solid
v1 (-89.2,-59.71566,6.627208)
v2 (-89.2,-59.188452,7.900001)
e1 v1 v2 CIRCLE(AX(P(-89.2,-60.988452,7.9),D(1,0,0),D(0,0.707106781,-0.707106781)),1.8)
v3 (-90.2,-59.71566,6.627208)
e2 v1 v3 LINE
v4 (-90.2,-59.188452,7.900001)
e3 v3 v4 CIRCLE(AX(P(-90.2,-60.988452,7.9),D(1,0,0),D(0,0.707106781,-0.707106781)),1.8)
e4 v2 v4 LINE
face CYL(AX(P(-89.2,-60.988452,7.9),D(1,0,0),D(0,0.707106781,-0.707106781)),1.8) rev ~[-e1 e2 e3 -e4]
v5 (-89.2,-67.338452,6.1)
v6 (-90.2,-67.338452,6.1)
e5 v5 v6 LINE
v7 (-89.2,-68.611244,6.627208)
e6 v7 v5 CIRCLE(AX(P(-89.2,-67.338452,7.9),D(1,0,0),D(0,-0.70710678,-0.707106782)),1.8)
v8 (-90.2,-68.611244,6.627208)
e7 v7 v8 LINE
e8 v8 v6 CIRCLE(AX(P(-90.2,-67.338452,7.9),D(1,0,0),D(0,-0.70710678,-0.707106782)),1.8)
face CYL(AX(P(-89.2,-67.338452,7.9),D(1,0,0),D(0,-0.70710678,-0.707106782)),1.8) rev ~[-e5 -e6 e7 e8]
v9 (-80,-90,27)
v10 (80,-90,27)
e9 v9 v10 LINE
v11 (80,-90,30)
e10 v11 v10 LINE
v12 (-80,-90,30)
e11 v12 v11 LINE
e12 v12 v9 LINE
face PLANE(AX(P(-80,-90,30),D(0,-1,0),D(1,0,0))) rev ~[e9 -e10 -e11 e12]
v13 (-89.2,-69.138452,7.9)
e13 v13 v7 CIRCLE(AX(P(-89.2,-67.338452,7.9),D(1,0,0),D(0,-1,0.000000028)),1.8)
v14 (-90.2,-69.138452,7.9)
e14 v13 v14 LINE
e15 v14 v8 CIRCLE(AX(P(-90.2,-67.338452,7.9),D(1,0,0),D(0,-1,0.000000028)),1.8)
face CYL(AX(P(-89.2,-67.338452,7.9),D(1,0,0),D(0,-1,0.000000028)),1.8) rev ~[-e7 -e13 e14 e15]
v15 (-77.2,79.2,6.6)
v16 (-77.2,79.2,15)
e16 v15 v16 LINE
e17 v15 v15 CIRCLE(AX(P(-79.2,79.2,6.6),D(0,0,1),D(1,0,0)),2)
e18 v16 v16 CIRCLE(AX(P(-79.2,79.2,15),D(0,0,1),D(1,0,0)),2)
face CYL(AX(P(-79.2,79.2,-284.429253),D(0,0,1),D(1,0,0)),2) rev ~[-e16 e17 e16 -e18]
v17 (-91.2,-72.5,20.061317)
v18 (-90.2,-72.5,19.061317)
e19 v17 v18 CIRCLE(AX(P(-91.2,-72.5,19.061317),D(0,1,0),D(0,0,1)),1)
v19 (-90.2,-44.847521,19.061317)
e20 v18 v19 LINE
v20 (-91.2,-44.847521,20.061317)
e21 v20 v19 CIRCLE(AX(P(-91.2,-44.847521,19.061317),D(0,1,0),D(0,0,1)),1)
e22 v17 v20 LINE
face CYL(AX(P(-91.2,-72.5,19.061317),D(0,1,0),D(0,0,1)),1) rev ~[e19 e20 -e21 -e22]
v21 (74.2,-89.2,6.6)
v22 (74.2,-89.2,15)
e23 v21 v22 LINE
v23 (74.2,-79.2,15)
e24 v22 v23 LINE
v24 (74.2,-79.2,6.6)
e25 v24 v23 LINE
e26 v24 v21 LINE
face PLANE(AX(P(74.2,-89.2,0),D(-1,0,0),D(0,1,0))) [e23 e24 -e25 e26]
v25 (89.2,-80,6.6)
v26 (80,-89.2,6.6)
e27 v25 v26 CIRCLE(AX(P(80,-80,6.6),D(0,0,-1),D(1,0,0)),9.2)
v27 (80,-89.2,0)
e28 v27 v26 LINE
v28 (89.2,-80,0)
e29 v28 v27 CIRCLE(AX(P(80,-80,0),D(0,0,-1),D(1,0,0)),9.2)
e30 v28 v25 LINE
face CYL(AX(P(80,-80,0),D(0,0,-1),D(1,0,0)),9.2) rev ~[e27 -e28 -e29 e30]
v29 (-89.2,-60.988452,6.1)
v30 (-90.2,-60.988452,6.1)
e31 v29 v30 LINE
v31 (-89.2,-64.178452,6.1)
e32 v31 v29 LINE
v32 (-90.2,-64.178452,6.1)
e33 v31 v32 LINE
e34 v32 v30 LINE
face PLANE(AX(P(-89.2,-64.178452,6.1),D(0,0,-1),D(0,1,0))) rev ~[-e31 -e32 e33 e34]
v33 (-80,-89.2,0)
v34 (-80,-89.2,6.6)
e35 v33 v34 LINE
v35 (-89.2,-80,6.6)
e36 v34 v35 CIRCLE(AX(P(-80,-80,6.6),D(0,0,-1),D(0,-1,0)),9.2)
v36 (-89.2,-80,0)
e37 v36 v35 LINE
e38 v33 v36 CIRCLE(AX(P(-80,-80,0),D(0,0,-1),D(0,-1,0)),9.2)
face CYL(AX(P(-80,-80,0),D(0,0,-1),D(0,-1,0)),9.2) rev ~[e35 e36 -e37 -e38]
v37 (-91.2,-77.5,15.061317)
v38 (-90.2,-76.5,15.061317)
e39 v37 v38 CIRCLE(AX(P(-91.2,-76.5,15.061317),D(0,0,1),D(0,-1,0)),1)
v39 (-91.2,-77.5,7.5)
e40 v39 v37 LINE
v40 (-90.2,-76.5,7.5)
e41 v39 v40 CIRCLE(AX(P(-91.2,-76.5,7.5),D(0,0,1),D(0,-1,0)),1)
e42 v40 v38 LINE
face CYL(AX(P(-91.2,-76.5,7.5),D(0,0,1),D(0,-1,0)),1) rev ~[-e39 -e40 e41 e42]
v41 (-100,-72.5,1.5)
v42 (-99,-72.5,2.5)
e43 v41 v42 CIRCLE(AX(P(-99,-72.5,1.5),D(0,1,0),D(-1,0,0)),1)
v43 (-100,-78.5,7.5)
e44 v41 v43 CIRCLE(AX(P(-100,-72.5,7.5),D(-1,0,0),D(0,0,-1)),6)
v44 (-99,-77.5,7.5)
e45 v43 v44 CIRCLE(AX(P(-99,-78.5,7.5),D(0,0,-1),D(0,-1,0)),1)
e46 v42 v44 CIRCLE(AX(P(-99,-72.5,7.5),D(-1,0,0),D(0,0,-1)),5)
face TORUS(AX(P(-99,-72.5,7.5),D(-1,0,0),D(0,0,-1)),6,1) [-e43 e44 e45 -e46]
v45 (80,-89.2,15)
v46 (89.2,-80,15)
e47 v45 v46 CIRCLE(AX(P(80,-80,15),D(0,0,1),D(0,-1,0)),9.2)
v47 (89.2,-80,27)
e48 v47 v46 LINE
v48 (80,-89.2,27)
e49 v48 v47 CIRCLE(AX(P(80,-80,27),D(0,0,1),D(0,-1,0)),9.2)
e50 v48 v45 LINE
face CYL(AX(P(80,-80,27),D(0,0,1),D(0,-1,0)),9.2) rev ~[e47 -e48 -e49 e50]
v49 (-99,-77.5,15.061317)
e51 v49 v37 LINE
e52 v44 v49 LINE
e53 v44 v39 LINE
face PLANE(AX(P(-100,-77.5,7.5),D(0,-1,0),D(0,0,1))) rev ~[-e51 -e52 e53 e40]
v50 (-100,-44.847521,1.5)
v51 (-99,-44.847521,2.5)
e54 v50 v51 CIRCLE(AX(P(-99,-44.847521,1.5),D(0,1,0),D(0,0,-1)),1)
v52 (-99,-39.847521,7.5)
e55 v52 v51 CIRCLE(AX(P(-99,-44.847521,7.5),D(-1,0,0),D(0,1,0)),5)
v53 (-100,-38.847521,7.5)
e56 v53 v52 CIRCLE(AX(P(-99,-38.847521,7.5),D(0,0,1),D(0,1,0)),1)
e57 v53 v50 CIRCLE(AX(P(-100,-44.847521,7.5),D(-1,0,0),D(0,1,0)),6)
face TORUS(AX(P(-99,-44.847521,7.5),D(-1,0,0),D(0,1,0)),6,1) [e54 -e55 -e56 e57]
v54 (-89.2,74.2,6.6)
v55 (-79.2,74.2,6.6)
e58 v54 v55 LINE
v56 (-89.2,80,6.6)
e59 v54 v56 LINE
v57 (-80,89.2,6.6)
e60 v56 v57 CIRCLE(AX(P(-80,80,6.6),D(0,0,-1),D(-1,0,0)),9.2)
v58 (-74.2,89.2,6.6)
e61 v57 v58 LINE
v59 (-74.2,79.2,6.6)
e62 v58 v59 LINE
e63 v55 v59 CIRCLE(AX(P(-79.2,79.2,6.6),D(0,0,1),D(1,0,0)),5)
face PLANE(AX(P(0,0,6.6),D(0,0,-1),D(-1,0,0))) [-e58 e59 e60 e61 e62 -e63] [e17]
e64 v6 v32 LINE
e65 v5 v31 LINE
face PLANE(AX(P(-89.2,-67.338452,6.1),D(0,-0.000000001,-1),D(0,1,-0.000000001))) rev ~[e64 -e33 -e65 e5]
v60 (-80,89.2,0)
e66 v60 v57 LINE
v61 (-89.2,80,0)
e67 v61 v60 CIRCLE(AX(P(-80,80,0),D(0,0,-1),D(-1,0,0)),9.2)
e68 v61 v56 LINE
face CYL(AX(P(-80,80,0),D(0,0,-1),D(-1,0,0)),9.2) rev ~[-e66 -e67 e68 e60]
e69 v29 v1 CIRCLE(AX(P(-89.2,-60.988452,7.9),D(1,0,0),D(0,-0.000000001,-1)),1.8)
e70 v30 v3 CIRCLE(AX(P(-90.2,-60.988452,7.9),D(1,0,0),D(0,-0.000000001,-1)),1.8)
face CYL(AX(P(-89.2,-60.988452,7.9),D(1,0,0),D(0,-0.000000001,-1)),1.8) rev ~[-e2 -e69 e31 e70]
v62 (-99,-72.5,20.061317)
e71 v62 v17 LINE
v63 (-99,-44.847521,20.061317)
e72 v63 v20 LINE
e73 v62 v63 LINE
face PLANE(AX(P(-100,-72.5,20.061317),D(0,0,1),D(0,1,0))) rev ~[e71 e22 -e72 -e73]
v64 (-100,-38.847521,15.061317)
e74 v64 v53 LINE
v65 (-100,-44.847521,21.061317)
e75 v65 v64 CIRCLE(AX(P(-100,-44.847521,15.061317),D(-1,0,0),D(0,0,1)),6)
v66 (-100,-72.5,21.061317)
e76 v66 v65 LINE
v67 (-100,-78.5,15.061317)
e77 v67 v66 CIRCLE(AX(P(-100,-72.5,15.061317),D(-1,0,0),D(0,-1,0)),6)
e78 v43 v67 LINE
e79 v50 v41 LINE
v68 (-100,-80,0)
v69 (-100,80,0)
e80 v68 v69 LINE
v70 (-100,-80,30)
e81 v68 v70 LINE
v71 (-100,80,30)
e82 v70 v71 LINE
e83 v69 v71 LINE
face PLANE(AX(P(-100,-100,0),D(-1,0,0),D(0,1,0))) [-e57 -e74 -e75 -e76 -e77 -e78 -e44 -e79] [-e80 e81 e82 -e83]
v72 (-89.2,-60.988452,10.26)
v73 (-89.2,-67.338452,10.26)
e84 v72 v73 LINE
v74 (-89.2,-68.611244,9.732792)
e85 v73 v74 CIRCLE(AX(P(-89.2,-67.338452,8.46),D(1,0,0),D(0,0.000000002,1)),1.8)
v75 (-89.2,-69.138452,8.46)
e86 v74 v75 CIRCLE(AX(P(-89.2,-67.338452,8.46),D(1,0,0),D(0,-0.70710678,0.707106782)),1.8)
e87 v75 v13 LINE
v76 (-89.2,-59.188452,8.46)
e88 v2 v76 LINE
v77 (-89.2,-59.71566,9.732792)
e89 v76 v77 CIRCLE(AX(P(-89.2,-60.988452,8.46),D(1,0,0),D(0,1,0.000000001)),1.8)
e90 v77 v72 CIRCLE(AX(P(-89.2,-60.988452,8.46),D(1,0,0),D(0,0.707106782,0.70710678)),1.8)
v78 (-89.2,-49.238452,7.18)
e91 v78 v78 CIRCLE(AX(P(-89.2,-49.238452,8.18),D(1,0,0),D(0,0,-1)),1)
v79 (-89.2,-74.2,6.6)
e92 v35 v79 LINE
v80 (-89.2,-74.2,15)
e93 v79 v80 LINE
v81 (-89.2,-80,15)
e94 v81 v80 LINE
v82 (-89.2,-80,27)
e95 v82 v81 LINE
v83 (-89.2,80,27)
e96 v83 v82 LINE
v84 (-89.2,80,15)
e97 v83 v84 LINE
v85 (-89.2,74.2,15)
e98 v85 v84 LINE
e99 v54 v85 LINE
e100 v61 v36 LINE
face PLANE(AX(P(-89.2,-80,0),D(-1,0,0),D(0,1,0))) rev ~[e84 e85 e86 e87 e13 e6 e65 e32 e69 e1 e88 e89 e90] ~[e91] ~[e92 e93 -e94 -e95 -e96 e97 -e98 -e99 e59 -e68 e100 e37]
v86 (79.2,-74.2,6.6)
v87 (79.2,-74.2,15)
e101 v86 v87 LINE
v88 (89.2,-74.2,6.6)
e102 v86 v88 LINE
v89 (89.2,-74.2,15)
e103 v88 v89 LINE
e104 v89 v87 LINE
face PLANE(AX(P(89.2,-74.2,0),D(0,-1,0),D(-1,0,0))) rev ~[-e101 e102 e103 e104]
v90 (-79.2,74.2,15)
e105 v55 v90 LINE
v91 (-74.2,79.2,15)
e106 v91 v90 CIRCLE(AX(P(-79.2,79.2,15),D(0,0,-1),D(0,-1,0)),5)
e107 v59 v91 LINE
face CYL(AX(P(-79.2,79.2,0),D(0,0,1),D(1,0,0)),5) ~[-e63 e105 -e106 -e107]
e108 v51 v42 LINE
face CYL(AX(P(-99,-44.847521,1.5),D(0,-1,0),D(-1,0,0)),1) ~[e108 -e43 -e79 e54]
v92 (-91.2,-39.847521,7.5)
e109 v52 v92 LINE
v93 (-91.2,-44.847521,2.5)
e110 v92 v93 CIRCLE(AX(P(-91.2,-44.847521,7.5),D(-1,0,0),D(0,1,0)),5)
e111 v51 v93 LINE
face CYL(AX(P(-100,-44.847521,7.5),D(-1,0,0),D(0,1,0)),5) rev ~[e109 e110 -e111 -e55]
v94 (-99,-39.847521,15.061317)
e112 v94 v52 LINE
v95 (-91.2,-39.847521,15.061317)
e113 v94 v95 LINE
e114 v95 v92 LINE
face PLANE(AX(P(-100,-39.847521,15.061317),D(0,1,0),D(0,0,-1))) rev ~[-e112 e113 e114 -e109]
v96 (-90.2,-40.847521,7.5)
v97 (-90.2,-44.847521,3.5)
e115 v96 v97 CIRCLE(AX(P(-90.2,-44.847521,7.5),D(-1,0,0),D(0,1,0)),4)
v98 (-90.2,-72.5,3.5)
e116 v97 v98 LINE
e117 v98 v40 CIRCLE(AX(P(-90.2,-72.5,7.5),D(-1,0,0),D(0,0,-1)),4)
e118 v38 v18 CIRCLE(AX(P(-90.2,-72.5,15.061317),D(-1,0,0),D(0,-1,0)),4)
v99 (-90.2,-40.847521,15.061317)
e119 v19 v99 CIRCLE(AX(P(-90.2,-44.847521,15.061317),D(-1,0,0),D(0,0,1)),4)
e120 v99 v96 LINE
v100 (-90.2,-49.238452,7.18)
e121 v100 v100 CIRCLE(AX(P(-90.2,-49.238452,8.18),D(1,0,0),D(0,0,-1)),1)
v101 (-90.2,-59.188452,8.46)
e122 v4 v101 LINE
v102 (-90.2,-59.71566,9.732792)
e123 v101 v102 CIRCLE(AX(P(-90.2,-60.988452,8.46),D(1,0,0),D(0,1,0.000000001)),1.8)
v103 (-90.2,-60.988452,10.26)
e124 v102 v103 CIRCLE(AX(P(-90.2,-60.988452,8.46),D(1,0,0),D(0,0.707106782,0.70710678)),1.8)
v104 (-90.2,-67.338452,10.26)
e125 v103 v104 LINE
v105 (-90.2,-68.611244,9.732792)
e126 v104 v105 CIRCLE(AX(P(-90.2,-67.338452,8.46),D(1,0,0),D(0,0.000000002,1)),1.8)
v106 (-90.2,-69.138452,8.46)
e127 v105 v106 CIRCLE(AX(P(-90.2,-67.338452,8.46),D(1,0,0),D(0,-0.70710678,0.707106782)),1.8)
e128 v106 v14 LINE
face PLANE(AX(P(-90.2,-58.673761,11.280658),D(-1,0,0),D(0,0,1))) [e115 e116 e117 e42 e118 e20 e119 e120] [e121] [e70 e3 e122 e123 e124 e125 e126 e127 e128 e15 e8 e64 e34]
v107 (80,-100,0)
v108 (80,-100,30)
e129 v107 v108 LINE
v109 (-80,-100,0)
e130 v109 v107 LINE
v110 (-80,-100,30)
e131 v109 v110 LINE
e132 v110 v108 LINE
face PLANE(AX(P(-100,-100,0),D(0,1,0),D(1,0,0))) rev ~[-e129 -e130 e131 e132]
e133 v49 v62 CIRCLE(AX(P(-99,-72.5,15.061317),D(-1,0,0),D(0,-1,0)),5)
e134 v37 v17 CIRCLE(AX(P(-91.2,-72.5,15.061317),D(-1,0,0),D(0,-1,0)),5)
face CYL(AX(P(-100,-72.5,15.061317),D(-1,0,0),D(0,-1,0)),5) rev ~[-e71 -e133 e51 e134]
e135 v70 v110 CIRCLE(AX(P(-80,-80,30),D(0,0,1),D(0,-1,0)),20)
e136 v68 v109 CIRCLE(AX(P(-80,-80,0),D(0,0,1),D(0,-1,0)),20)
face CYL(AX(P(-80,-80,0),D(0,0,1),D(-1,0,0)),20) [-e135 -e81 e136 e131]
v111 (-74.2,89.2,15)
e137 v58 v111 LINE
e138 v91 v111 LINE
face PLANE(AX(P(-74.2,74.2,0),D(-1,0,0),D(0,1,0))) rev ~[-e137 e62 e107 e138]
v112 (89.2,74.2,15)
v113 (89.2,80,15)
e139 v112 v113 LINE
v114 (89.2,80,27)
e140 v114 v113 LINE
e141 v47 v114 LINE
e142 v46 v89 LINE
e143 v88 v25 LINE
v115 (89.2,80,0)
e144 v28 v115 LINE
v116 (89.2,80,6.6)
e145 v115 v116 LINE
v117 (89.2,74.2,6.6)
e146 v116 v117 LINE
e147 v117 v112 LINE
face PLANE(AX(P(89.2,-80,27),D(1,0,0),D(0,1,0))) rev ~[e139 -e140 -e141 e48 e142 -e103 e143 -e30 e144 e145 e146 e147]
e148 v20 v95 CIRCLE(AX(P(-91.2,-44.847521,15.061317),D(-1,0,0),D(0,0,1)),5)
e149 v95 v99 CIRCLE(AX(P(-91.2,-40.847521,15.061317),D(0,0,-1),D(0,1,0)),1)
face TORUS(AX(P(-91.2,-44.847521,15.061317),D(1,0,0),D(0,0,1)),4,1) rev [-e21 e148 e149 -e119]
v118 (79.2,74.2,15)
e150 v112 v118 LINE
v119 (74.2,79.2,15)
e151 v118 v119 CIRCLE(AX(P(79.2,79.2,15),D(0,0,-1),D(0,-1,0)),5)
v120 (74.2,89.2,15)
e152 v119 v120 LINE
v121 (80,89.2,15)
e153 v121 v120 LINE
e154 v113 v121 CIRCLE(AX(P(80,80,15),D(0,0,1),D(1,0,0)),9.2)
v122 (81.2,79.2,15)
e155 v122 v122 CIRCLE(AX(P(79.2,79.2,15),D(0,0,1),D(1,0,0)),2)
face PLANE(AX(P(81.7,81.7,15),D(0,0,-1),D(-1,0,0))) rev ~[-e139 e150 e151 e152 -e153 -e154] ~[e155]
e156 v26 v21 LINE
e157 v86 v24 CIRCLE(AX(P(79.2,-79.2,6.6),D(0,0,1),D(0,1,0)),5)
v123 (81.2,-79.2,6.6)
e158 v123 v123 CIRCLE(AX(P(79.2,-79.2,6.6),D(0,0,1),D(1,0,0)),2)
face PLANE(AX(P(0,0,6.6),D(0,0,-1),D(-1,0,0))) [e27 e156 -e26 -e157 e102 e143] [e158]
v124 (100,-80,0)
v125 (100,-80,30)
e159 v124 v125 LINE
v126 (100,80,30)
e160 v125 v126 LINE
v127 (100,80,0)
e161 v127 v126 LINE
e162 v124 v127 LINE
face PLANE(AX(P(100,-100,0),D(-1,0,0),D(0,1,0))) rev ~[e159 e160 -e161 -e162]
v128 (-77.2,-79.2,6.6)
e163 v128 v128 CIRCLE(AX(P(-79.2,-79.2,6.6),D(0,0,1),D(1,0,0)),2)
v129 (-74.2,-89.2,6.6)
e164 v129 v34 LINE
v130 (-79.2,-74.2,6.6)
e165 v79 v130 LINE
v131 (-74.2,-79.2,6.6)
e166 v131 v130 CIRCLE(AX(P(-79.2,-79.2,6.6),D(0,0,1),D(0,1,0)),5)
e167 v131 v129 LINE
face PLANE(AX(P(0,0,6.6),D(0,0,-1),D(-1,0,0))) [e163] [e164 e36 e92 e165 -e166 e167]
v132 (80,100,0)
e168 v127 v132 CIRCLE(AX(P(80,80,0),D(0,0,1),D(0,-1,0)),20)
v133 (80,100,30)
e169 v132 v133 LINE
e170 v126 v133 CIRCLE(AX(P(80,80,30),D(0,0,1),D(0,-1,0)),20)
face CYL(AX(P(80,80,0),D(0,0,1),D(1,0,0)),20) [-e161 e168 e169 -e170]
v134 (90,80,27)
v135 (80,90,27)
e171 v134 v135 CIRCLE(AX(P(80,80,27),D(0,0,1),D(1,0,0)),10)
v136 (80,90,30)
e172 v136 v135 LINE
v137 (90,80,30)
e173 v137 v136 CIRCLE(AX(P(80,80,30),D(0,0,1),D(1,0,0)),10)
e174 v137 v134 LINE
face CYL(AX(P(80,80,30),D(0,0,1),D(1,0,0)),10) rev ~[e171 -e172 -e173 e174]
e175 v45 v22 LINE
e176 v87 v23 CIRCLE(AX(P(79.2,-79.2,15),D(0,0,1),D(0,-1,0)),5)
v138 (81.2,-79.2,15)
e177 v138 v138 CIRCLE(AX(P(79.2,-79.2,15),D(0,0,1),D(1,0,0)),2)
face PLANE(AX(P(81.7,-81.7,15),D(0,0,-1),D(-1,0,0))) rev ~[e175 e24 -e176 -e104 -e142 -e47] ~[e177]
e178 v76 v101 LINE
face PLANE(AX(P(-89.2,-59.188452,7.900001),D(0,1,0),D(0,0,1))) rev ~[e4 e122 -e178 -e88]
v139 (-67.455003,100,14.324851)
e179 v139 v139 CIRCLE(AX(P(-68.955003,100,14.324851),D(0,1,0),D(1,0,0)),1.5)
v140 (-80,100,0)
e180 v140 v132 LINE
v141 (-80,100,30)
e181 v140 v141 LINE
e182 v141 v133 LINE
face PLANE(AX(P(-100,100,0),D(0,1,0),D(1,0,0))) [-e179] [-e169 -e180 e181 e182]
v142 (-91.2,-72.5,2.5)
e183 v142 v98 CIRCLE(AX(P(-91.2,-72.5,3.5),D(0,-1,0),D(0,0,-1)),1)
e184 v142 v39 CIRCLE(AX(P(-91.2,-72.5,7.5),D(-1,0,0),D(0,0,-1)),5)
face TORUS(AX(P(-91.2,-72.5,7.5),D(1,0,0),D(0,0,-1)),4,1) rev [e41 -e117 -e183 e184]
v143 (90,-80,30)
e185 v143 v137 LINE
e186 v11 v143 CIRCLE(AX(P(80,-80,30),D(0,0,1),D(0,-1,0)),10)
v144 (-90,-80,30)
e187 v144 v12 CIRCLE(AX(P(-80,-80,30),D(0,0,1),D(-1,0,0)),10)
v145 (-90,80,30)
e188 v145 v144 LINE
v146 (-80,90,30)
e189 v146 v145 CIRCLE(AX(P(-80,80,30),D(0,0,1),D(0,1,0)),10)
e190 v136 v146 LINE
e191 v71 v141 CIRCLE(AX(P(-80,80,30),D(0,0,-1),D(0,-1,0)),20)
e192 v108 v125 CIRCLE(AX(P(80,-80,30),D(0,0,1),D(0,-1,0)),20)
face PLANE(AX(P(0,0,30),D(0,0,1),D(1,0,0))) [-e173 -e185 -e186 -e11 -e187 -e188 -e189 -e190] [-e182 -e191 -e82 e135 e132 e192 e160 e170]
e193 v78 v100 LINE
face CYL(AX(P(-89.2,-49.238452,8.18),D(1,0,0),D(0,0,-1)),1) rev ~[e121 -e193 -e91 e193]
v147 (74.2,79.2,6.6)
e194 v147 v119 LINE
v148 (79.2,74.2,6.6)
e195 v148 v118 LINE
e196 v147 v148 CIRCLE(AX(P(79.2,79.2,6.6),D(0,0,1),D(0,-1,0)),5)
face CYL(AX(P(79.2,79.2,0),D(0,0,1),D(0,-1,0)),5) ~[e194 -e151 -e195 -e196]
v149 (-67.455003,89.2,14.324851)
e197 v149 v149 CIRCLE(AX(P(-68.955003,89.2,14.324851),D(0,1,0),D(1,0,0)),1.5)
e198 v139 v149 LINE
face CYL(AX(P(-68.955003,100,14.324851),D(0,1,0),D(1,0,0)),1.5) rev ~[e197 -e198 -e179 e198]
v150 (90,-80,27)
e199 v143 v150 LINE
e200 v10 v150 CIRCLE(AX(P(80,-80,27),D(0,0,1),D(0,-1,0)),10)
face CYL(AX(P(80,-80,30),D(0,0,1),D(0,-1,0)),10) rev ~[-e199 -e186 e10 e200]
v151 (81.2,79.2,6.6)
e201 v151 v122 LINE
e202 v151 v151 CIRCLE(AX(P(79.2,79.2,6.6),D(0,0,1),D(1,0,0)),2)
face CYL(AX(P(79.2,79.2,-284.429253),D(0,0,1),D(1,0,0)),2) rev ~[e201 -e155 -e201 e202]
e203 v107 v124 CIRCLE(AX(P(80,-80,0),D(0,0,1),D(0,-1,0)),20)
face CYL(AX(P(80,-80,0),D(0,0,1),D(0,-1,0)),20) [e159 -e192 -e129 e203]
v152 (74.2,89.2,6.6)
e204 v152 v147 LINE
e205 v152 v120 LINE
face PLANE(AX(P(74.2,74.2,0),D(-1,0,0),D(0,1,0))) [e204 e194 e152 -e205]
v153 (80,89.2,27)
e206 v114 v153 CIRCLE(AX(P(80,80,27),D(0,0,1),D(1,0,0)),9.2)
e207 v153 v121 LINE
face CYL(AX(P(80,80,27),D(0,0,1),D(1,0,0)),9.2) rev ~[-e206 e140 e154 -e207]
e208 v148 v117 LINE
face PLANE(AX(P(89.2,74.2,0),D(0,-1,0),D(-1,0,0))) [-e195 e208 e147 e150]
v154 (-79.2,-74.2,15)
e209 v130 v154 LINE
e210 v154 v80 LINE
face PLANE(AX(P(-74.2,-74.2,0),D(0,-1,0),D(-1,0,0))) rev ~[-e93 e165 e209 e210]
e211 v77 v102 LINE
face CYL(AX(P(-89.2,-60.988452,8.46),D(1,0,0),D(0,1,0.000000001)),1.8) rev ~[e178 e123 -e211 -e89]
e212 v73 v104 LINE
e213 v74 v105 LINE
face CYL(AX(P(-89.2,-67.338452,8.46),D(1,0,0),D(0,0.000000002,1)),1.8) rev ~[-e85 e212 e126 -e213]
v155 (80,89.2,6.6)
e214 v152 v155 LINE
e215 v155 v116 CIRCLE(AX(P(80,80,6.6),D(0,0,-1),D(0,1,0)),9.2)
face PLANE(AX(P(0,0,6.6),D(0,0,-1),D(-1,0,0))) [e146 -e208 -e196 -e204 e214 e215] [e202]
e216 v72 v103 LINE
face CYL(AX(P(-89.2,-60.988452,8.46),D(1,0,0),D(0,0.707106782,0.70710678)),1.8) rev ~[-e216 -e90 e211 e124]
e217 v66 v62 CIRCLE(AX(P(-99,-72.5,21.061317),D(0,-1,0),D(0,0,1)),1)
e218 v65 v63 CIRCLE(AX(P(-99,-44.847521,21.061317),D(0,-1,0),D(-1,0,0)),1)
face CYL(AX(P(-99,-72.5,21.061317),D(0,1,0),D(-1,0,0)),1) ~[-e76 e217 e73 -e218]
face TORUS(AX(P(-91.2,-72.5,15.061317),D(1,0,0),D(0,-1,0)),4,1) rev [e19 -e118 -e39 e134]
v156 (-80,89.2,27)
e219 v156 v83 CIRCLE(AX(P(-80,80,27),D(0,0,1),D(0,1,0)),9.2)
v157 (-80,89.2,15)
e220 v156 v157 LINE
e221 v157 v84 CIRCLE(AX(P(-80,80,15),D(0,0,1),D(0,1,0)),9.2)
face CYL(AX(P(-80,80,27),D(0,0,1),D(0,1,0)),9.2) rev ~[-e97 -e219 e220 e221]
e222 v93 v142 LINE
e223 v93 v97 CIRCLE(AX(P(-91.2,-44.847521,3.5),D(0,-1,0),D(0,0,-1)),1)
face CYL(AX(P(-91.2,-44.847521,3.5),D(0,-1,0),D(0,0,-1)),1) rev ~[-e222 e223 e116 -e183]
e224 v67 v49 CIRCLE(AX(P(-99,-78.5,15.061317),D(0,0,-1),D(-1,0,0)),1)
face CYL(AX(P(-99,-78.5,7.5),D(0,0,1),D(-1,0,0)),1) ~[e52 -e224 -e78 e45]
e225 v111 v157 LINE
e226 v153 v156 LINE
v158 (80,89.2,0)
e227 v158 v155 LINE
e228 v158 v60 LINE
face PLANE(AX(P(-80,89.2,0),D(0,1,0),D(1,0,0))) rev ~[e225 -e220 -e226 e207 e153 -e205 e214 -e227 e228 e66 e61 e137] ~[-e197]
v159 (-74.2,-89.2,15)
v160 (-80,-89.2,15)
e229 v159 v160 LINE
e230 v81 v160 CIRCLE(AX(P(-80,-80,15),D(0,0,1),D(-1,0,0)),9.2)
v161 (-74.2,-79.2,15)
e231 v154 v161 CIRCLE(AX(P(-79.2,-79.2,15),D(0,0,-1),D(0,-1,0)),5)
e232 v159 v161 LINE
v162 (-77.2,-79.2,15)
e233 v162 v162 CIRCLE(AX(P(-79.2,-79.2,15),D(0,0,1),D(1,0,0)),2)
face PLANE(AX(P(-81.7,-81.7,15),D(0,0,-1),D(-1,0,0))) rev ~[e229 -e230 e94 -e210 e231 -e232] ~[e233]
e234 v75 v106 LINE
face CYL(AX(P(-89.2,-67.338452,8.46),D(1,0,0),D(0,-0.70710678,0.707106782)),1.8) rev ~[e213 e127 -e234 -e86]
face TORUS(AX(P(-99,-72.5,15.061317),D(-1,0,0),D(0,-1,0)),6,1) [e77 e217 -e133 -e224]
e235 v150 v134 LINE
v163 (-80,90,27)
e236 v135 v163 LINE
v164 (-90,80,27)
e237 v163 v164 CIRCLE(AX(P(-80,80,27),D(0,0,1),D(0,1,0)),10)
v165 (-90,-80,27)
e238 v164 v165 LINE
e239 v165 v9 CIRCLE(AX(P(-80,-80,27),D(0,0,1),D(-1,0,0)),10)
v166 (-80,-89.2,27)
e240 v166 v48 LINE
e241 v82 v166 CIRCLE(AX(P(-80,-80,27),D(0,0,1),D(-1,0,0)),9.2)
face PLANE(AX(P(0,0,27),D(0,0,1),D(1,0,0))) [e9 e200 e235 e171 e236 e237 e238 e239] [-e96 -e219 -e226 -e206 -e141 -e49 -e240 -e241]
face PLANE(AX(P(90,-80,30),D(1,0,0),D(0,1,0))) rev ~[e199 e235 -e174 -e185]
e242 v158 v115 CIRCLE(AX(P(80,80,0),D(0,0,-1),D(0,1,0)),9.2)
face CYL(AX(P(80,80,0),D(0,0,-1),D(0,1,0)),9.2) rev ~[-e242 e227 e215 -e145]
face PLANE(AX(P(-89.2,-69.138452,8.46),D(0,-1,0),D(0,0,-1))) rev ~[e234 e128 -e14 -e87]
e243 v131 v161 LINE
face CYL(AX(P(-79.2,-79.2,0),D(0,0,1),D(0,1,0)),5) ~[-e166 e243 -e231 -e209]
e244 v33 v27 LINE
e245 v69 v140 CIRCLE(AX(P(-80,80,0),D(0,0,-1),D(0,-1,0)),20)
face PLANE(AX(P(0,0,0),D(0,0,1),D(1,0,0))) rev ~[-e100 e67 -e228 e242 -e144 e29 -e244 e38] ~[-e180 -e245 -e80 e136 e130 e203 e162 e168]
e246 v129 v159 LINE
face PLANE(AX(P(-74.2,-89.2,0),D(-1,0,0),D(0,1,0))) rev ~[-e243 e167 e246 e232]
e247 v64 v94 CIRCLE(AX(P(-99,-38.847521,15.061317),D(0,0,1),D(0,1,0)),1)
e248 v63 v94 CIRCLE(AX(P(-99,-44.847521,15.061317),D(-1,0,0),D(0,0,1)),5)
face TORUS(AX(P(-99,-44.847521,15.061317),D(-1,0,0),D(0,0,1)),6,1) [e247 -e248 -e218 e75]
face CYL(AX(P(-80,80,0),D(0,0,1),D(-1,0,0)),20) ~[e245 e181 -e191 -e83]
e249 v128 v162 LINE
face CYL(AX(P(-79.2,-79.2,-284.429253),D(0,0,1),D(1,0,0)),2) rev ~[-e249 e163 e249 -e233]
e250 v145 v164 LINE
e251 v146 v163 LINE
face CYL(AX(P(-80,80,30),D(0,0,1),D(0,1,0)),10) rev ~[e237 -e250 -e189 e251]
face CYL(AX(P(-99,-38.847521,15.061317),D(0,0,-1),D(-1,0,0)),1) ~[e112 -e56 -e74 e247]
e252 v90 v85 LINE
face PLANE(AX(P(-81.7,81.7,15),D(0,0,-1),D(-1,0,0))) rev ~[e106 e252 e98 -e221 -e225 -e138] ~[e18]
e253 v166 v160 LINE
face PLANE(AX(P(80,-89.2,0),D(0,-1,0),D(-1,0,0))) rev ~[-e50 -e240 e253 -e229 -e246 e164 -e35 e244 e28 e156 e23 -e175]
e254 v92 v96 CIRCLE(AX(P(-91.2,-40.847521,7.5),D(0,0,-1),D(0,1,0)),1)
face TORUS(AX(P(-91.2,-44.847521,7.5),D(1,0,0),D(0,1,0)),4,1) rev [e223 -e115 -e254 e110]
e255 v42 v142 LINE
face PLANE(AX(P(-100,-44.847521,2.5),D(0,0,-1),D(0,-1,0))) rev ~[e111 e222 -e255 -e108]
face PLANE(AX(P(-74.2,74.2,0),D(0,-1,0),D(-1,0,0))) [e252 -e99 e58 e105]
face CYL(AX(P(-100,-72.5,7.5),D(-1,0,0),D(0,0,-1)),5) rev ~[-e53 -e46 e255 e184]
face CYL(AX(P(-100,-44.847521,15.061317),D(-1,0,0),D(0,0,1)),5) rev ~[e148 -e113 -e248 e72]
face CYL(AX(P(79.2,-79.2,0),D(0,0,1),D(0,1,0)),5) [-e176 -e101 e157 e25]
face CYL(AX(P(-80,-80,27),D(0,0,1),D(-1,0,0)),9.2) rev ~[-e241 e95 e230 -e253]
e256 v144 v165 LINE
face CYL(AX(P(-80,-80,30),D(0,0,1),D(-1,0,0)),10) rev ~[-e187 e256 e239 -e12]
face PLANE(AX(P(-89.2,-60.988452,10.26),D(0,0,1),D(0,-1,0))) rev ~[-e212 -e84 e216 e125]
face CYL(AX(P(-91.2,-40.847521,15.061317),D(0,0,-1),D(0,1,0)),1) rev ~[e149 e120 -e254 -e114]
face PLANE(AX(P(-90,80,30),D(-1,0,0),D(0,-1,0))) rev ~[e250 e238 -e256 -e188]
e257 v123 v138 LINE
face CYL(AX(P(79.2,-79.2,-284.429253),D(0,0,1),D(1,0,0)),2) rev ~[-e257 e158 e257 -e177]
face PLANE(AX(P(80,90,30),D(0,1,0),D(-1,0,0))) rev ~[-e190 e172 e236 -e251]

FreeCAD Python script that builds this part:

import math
import FreeCAD as App
import Part
import Sketcher

V = App.Vector


def edges_at(feature, points):
    """Names of the edges that pass closest to the given points."""
    edges = feature.Shape.Edges
    near = lambda p: min(range(len(edges)), key=lambda i: edges[i].distToShape(Part.Vertex(*p))[0])
    return sorted({f"Edge{near(p) + 1}" for p in points})


def add_polygon(sketch, points):
    """Adds a closed chain of lines whose ends are joined by coincident constraints."""
    first, n = sketch.GeometryCount, len(points)
    for a, b in zip(points, points[1:] + points[:1]):
        sketch.addGeometry(Part.LineSegment(App.Vector(*a, 0), App.Vector(*b, 0)), False)
    for i in range(n):
        sketch.addConstraint(Sketcher.Constraint("Coincident", first + i, 2, first + (i + 1) % n, 1))

doc = App.newDocument("Part")
body = doc.addObject("PartDesign::Body", "Body")

sketch1 = body.newObject("Sketcher::SketchObject", "Sketch")
sketch1.AttachmentSupport = (doc.getObject("XY_Plane"), [""])
sketch1.MapMode = "FlatFace"
add_polygon(sketch1, [(-100, 100), (-100, -100), (100, -100), (100, 100)])
sketch1.addConstraint(Sketcher.Constraint("Vertical", 0))
sketch1.addConstraint(Sketcher.Constraint("Horizontal", 1))
sketch1.addConstraint(Sketcher.Constraint("Vertical", 2))
sketch1.addConstraint(Sketcher.Constraint("Horizontal", 3))
sketch1.addConstraint(Sketcher.Constraint("Symmetric", 0, 2, 2, 2, -1, 1))
sketch1.addConstraint(Sketcher.Constraint("Equal", 3, 0))
sketch1.addConstraint(Sketcher.Constraint("DistanceX", 1, 1, 1, 2, 200.0))
pad1 = body.newObject("PartDesign::Pad", "Pad")
pad1.Profile = sketch1
pad1.Length = 30
doc.recompute()

fillet = body.newObject("PartDesign::Fillet", "Fillet")
fillet.Base = (pad1, edges_at(pad1, [
    (100, -100, 15),
    (-100, -100, 15),
    (-100, 100, 15),
    (100, 100, 15),
]))
fillet.Radius = 20

sketch2 = body.newObject("Sketcher::SketchObject", "Sketch001")
sketch2.AttachmentSupport = (doc.getObject("XY_Plane"), [""])
sketch2.MapMode = "FlatFace"
sketch2.AttachmentOffset = App.Placement(V(0, 0, 30), App.Rotation())
sketch2.addGeometry(Part.LineSegment(V(-90, 80, 0), V(-90, -80, 0)), False)
sketch2.addGeometry(Part.ArcOfCircle(Part.Circle(V(-80, -80, 0), V(0, 0, 1), 10), math.radians(180), math.radians(270)), False)
sketch2.addGeometry(Part.LineSegment(V(-80, -90, 0), V(80, -90, 0)), False)
sketch2.addGeometry(Part.ArcOfCircle(Part.Circle(V(80, -80, 0), V(0, 0, 1), 10), math.radians(-90), math.radians(0)), False)
sketch2.addGeometry(Part.LineSegment(V(90, -80, 0), V(90, 80, 0)), False)
sketch2.addGeometry(Part.ArcOfCircle(Part.Circle(V(80, 80, 0), V(0, 0, 1), 10), math.radians(0), math.radians(90)), False)
sketch2.addGeometry(Part.LineSegment(V(80, 90, 0), V(-80, 90, 0)), False)
sketch2.addGeometry(Part.ArcOfCircle(Part.Circle(V(-80, 80, 0), V(0, 0, 1), 10), math.radians(90), math.radians(180)), False)
sketch2.addConstraint(Sketcher.Constraint("Tangent", 0, 2, 1, 1))
sketch2.addConstraint(Sketcher.Constraint("Tangent", 1, 2, 2, 1))
sketch2.addConstraint(Sketcher.Constraint("Tangent", 2, 2, 3, 1))
sketch2.addConstraint(Sketcher.Constraint("Tangent", 3, 2, 4, 1))
sketch2.addConstraint(Sketcher.Constraint("Tangent", 4, 2, 5, 1))
sketch2.addConstraint(Sketcher.Constraint("Tangent", 5, 2, 6, 1))
sketch2.addConstraint(Sketcher.Constraint("Tangent", 6, 2, 7, 1))
sketch2.addConstraint(Sketcher.Constraint("Tangent", 7, 2, 0, 1))
sketch2.addConstraint(Sketcher.Constraint("Vertical", 0))
sketch2.addConstraint(Sketcher.Constraint("Horizontal", 2))
sketch2.addConstraint(Sketcher.Constraint("Vertical", 4))
sketch2.addConstraint(Sketcher.Constraint("Horizontal", 6))
sketch2.addConstraint(Sketcher.Constraint("Equal", 1, 3))
sketch2.addConstraint(Sketcher.Constraint("Equal", 3, 5))
sketch2.addConstraint(Sketcher.Constraint("Equal", 5, 7))
sketch2.addConstraint(Sketcher.Constraint("Symmetric", 1, 3, 5, 3, -1, 1))
sketch2.addConstraint(Sketcher.Constraint("Equal", 6, 0))
sketch2.addConstraint(Sketcher.Constraint("Radius", 1, 10.0))
sketch2.addConstraint(Sketcher.Constraint("DistanceX", 2, 1, 2, 2, 160.0))
pocket1 = body.newObject("PartDesign::Pocket", "Pocket")
pocket1.Profile = sketch2
pocket1.Length = 3

sketch3 = body.newObject("Sketcher::SketchObject", "Sketch002")
sketch3.AttachmentSupport = (doc.getObject("XY_Plane"), [""])
sketch3.MapMode = "FlatFace"
sketch3.AttachmentOffset = App.Placement(V(0, 0, 27), App.Rotation())
sketch3.addGeometry(Part.LineSegment(V(-89, 80, 0), V(-89, -80, 0)), False)
sketch3.addGeometry(Part.ArcOfCircle(Part.Circle(V(-80, -80, 0), V(0, 0, 1), 9), math.radians(180), math.radians(270)), False)
sketch3.addGeometry(Part.LineSegment(V(-80, -89, 0), V(80, -89, 0)), False)
sketch3.addGeometry(Part.ArcOfCircle(Part.Circle(V(80, -80, 0), V(0, 0, 1), 9), math.radians(-90), math.radians(0)), False)
sketch3.addGeometry(Part.LineSegment(V(89, -80, 0), V(89, 80, 0)), False)
sketch3.addGeometry(Part.ArcOfCircle(Part.Circle(V(80, 80, 0), V(0, 0, 1), 9), math.radians(0), math.radians(90)), False)
sketch3.addGeometry(Part.LineSegment(V(80, 89, 0), V(-80, 89, 0)), False)
sketch3.addGeometry(Part.ArcOfCircle(Part.Circle(V(-80, 80, 0), V(0, 0, 1), 9), math.radians(90), math.radians(180)), False)
sketch3.addConstraint(Sketcher.Constraint("Tangent", 0, 2, 1, 1))
sketch3.addConstraint(Sketcher.Constraint("Tangent", 1, 2, 2, 1))
sketch3.addConstraint(Sketcher.Constraint("Tangent", 2, 2, 3, 1))
sketch3.addConstraint(Sketcher.Constraint("Tangent", 3, 2, 4, 1))
sketch3.addConstraint(Sketcher.Constraint("Tangent", 4, 2, 5, 1))
sketch3.addConstraint(Sketcher.Constraint("Tangent", 5, 2, 6, 1))
sketch3.addConstraint(Sketcher.Constraint("Tangent", 6, 2, 7, 1))
sketch3.addConstraint(Sketcher.Constraint("Tangent", 7, 2, 0, 1))
sketch3.addConstraint(Sketcher.Constraint("Vertical", 0))
sketch3.addConstraint(Sketcher.Constraint("Horizontal", 2))
sketch3.addConstraint(Sketcher.Constraint("Vertical", 4))
sketch3.addConstraint(Sketcher.Constraint("Horizontal", 6))
sketch3.addConstraint(Sketcher.Constraint("Equal", 1, 3))
sketch3.addConstraint(Sketcher.Constraint("Equal", 3, 5))
sketch3.addConstraint(Sketcher.Constraint("Equal", 5, 7))
sketch3.addConstraint(Sketcher.Constraint("Symmetric", 1, 3, 5, 3, -1, 1))
sketch3.addConstraint(Sketcher.Constraint("Equal", 6, 0))
sketch3.addConstraint(Sketcher.Constraint("Radius", 1, 9.2))
sketch3.addConstraint(Sketcher.Constraint("DistanceX", 2, 1, 2, 2, 160.0))
pocket2 = body.newObject("PartDesign::Pocket", "Pocket001")
pocket2.Profile = sketch3
pocket2.Type = "ThroughAll"

sketch4 = body.newObject("Sketcher::SketchObject", "Sketch003")
sketch4.AttachmentSupport = (doc.getObject("XY_Plane"), [""])
sketch4.MapMode = "FlatFace"
add_polygon(sketch4, [(89, -74), (89, -89), (74, -89), (74, -74)])
add_polygon(sketch4, [(89, 89), (89, 74), (74, 74), (74, 89)])
add_polygon(sketch4, [(-74, 89), (-74, 74), (-89, 74), (-89, 89)])
add_polygon(sketch4, [(-74, -74), (-74, -89), (-89, -89), (-89, -74)])
sketch4.addConstraint(Sketcher.Constraint("Vertical", 0))
sketch4.addConstraint(Sketcher.Constraint("Horizontal", 1))
sketch4.addConstraint(Sketcher.Constraint("Vertical", 2))
sketch4.addConstraint(Sketcher.Constraint("Horizontal", 3))
sketch4.addConstraint(Sketcher.Constraint("Vertical", 4))
sketch4.addConstraint(Sketcher.Constraint("Horizontal", 5))
sketch4.addConstraint(Sketcher.Constraint("Vertical", 6))
sketch4.addConstraint(Sketcher.Constraint("Horizontal", 7))
sketch4.addConstraint(Sketcher.Constraint("Vertical", 8))
sketch4.addConstraint(Sketcher.Constraint("Horizontal", 9))
sketch4.addConstraint(Sketcher.Constraint("Vertical", 10))
sketch4.addConstraint(Sketcher.Constraint("Horizontal", 11))
sketch4.addConstraint(Sketcher.Constraint("Vertical", 12))
sketch4.addConstraint(Sketcher.Constraint("Horizontal", 13))
sketch4.addConstraint(Sketcher.Constraint("Vertical", 14))
sketch4.addConstraint(Sketcher.Constraint("Horizontal", 15))
sketch4.addConstraint(Sketcher.Constraint("Symmetric", 2, 2, 8, 2, -1, 1))
sketch4.addConstraint(Sketcher.Constraint("Symmetric", 0, 2, 10, 2, -1, 1))
sketch4.addConstraint(Sketcher.Constraint("Symmetric", 6, 2, 12, 2, -1, 1))
sketch4.addConstraint(Sketcher.Constraint("Symmetric", 4, 2, 14, 2, -1, 1))
sketch4.addConstraint(Sketcher.Constraint("Symmetric", 5, 2, 8, 2, -2))
sketch4.addConstraint(Sketcher.Constraint("Symmetric", 7, 2, 10, 2, -2))
sketch4.addConstraint(Sketcher.Constraint("Equal", 15, 0))
sketch4.addConstraint(Sketcher.Constraint("DistanceX", 1, 2, 1, 1, 15.0))
sketch4.addConstraint(Sketcher.Constraint("DistanceX", -1, 1, 0, 2, 89.2))
sketch4.addConstraint(Sketcher.Constraint("DistanceY", 0, 2, -1, 1, 89.2))
pad2 = body.newObject("PartDesign::Pad", "Pad001")
pad2.Profile = sketch4
pad2.Length = 15
doc.recompute()

fillet2 = body.newObject("PartDesign::Fillet", "Fillet001")
fillet2.Base = (pad2, edges_at(pad2, [
    (74.2, 74.2, 7.5),
    (-74.2, 74.2, 7.5),
    (-74.2, -74.2, 7.5),
    (74.2, -74.2, 7.5),
]))
fillet2.Radius = 5

sketch5 = body.newObject("Sketcher::SketchObject", "Sketch004")
sketch5.AttachmentSupport = (doc.getObject("XY_Plane"), [""])
sketch5.MapMode = "FlatFace"
sketch5.addGeometry(Part.Circle(V(79.2, 79.2, 0), V(0, 0, 1), 2), False)
sketch5.addGeometry(Part.Circle(V(-79.2, 79.2, 0), V(0, 0, 1), 2), False)
sketch5.addGeometry(Part.Circle(V(79.2, -79.2, 0), V(0, 0, 1), 2), False)
sketch5.addGeometry(Part.Circle(V(-79.2, -79.2, 0), V(0, 0, 1), 2), False)
sketch5.addConstraint(Sketcher.Constraint("Equal", 0, 1))
sketch5.addConstraint(Sketcher.Constraint("Equal", 1, 2))
sketch5.addConstraint(Sketcher.Constraint("Equal", 2, 3))
sketch5.addConstraint(Sketcher.Constraint("Symmetric", 1, 3, 2, 3, -1, 1))
sketch5.addConstraint(Sketcher.Constraint("Symmetric", 0, 3, 3, 3, -1, 1))
sketch5.addConstraint(Sketcher.Constraint("Symmetric", 0, 3, 1, 3, -2))
sketch5.addConstraint(Sketcher.Constraint("Diameter", 0, 4.0))
sketch5.addConstraint(Sketcher.Constraint("DistanceX", -1, 1, 0, 3, 79.2))
sketch5.addConstraint(Sketcher.Constraint("DistanceY", -1, 1, 0, 3, 79.2))
doc.recompute()
hole = body.newObject("PartDesign::Hole", "Hole")
hole.Profile = sketch5
hole.ThreadType = "None"
hole.Diameter = 4
hole.DepthType = "ThroughAll"
hole.Reversed = True

sketch6 = body.newObject("Sketcher::SketchObject", "Sketch005")
sketch6.AttachmentSupport = (doc.getObject("XY_Plane"), [""])
sketch6.MapMode = "FlatFace"
sketch6.addGeometry(Part.LineSegment(V(-89, -80, 0), V(-89, 80, 0)), False)
sketch6.addGeometry(Part.ArcOfCircle(Part.Circle(V(-80, 80, 0), V(0, 0, 1), 9), math.radians(90), math.radians(180)), False)
sketch6.addGeometry(Part.LineSegment(V(-80, 89, 0), V(80, 89, 0)), False)
sketch6.addGeometry(Part.ArcOfCircle(Part.Circle(V(80, 80, 0), V(0, 0, 1), 9), math.radians(0), math.radians(90)), False)
sketch6.addGeometry(Part.LineSegment(V(89, 80, 0), V(89, -80, 0)), False)
sketch6.addGeometry(Part.ArcOfCircle(Part.Circle(V(80, -80, 0), V(0, 0, 1), 9), math.radians(-90), math.radians(0)), False)
sketch6.addGeometry(Part.LineSegment(V(80, -89, 0), V(-80, -89, 0)), False)
sketch6.addGeometry(Part.ArcOfCircle(Part.Circle(V(-80, -80, 0), V(0, 0, 1), 9), math.radians(180), math.radians(270)), False)
sketch6.addConstraint(Sketcher.Constraint("Tangent", 0, 2, 1, 2))
sketch6.addConstraint(Sketcher.Constraint("Tangent", 1, 1, 2, 1))
sketch6.addConstraint(Sketcher.Constraint("Tangent", 2, 2, 3, 2))
sketch6.addConstraint(Sketcher.Constraint("Tangent", 3, 1, 4, 1))
sketch6.addConstraint(Sketcher.Constraint("Tangent", 4, 2, 5, 2))
sketch6.addConstraint(Sketcher.Constraint("Tangent", 5, 1, 6, 1))
sketch6.addConstraint(Sketcher.Constraint("Tangent", 6, 2, 7, 2))
sketch6.addConstraint(Sketcher.Constraint("Tangent", 7, 1, 0, 1))
sketch6.addConstraint(Sketcher.Constraint("Vertical", 0))
sketch6.addConstraint(Sketcher.Constraint("Horizontal", 2))
sketch6.addConstraint(Sketcher.Constraint("Vertical", 4))
sketch6.addConstraint(Sketcher.Constraint("Horizontal", 6))
sketch6.addConstraint(Sketcher.Constraint("Equal", 1, 3))
sketch6.addConstraint(Sketcher.Constraint("Equal", 3, 5))
sketch6.addConstraint(Sketcher.Constraint("Equal", 5, 7))
sketch6.addConstraint(Sketcher.Constraint("Symmetric", 1, 3, 5, 3, -1, 1))
sketch6.addConstraint(Sketcher.Constraint("Equal", 6, 0))
sketch6.addConstraint(Sketcher.Constraint("Radius", 1, 9.2))
sketch6.addConstraint(Sketcher.Constraint("DistanceX", 2, 1, 2, 2, 160.0))
pocket3 = body.newObject("PartDesign::Pocket", "Pocket002")
pocket3.Profile = sketch6
pocket3.Length = 6.6
pocket3.Reversed = True

sketch7 = body.newObject("Sketcher::SketchObject", "Sketch006")
sketch7.AttachmentSupport = (doc.getObject("XZ_Plane"), [""])
sketch7.MapMode = "FlatFace"
sketch7.AttachmentOffset = App.Placement(V(0, 0, -100), App.Rotation())
sketch7.addGeometry(Part.Circle(V(-69, 14.3, 0), V(0, 0, 1), 1.5), False)
sketch7.addConstraint(Sketcher.Constraint("Diameter", 0, 3.0))
sketch7.addConstraint(Sketcher.Constraint("DistanceY", -1, 1, 0, 3, 14.324851))
sketch7.addConstraint(Sketcher.Constraint("DistanceX", 0, 3, -1, 1, 68.955003))
pocket4 = body.newObject("PartDesign::Pocket", "Pocket003")
pocket4.Profile = sketch7
pocket4.Type = "UpToFirst"
pocket4.Reversed = True

sketch8 = body.newObject("Sketcher::SketchObject", "Sketch007")
sketch8.AttachmentSupport = (doc.getObject("YZ_Plane"), [""])
sketch8.MapMode = "FlatFace"
sketch8.AttachmentOffset = App.Placement(V(0, 0, -89.2), App.Rotation())
sketch8.addGeometry(Part.Circle(V(-49.2, 8.2, 0), V(0, 0, 1), 1), False)
sketch8.addGeometry(Part.LineSegment(V(-64.2, 6.1, 0), V(-61, 6.1, 0)), False)
sketch8.addGeometry(Part.ArcOfCircle(Part.Circle(V(-61, 7.9, 0), V(0, 0, 1), 1.8), math.radians(-90), math.radians(-45)), False)
sketch8.addGeometry(Part.ArcOfCircle(Part.Circle(V(-61, 7.9, 0), V(0, 0, 1), 1.8), math.radians(-45), math.radians(0)), False)
sketch8.addGeometry(Part.LineSegment(V(-59.2, 7.9, 0), V(-59.2, 8.5, 0)), False)
sketch8.addGeometry(Part.ArcOfCircle(Part.Circle(V(-61, 8.5, 0), V(0, 0, 1), 1.8), math.radians(0), math.radians(45)), False)
sketch8.addGeometry(Part.ArcOfCircle(Part.Circle(V(-61, 8.5, 0), V(0, 0, 1), 1.8), math.radians(45), math.radians(90)), False)
sketch8.addGeometry(Part.LineSegment(V(-61, 10.3, 0), V(-67.3, 10.3, 0)), False)
sketch8.addGeometry(Part.ArcOfCircle(Part.Circle(V(-67.3, 8.5, 0), V(0, 0, 1), 1.8), math.radians(90), math.radians(135)), False)
sketch8.addGeometry(Part.ArcOfCircle(Part.Circle(V(-67.3, 8.5, 0), V(0, 0, 1), 1.8), math.radians(135), math.radians(180)), False)
sketch8.addGeometry(Part.LineSegment(V(-69.1, 8.5, 0), V(-69.1, 7.9, 0)), False)
sketch8.addGeometry(Part.ArcOfCircle(Part.Circle(V(-67.3, 7.9, 0), V(0, 0, 1), 1.8), math.radians(180), math.radians(225)), False)
sketch8.addGeometry(Part.ArcOfCircle(Part.Circle(V(-67.3, 7.9, 0), V(0, 0, 1), 1.8), math.radians(-135), math.radians(-90)), False)
sketch8.addGeometry(Part.LineSegment(V(-67.3, 6.1, 0), V(-64.2, 6.1, 0)), False)
sketch8.addConstraint(Sketcher.Constraint("Tangent", 1, 2, 2, 1))
sketch8.addConstraint(Sketcher.Constraint("Tangent", 2, 2, 3, 1))
sketch8.addConstraint(Sketcher.Constraint("Tangent", 3, 2, 4, 1))
sketch8.addConstraint(Sketcher.Constraint("Tangent", 4, 2, 5, 1))
sketch8.addConstraint(Sketcher.Constraint("Tangent", 5, 2, 6, 1))
sketch8.addConstraint(Sketcher.Constraint("Tangent", 6, 2, 7, 1))
sketch8.addConstraint(Sketcher.Constraint("Tangent", 7, 2, 8, 1))
sketch8.addConstraint(Sketcher.Constraint("Tangent", 8, 2, 9, 1))
sketch8.addConstraint(Sketcher.Constraint("Tangent", 9, 2, 10, 1))
sketch8.addConstraint(Sketcher.Constraint("Tangent", 10, 2, 11, 1))
sketch8.addConstraint(Sketcher.Constraint("Tangent", 11, 2, 12, 1))
sketch8.addConstraint(Sketcher.Constraint("Tangent", 12, 2, 13, 1))
sketch8.addConstraint(Sketcher.Constraint("Coincident", 13, 2, 1, 1))
sketch8.addConstraint(Sketcher.Constraint("Horizontal", 1))
sketch8.addConstraint(Sketcher.Constraint("Vertical", 4))
sketch8.addConstraint(Sketcher.Constraint("Horizontal", 7))
sketch8.addConstraint(Sketcher.Constraint("Vertical", 10))
sketch8.addConstraint(Sketcher.Constraint("Horizontal", 13))
sketch8.addConstraint(Sketcher.Constraint("Equal", 2, 3))
sketch8.addConstraint(Sketcher.Constraint("Equal", 3, 5))
sketch8.addConstraint(Sketcher.Constraint("Equal", 5, 6))
sketch8.addConstraint(Sketcher.Constraint("Equal", 6, 8))
sketch8.addConstraint(Sketcher.Constraint("Equal", 8, 9))
sketch8.addConstraint(Sketcher.Constraint("Equal", 9, 11))
sketch8.addConstraint(Sketcher.Constraint("Equal", 11, 12))
sketch8.addConstraint(Sketcher.Constraint("Horizontal", 5, 2, 8, 2))
sketch8.addConstraint(Sketcher.Constraint("Horizontal", 2, 2, 11, 2))
sketch8.addConstraint(Sketcher.Constraint("Vertical", 2, 2, 5, 2))
sketch8.addConstraint(Sketcher.Constraint("Diameter", 0, 2.0))
sketch8.addConstraint(Sketcher.Constraint("Radius", 2, 1.8))
sketch8.addConstraint(Sketcher.Constraint("DistanceX", 1, 1, 1, 2, 3.19))
sketch8.addConstraint(Sketcher.Constraint("DistanceX", 7, 2, 7, 1, 6.35))
sketch8.addConstraint(Sketcher.Constraint("DistanceY", 4, 1, 4, 2, 0.559999))
sketch8.addConstraint(Sketcher.Constraint("DistanceY", -1, 1, 2, 3, 7.9))
sketch8.addConstraint(Sketcher.Constraint("DistanceX", 8, 3, 0, 3, 18.1))
sketch8.addConstraint(Sketcher.Constraint("DistanceY", -1, 1, 0, 3, 8.18))
sketch8.addConstraint(Sketcher.Constraint("DistanceX", 0, 3, -1, 1, 49.238452))
sketch8.addConstraint(Sketcher.Constraint("DistanceX", 2, 2, -1, 1, 59.71566))
pocket5 = body.newObject("PartDesign::Pocket", "Pocket004")
pocket5.Profile = sketch8
pocket5.Type = "ThroughAll"

sketch9 = body.newObject("Sketcher::SketchObject", "Sketch008")
sketch9.AttachmentSupport = (doc.getObject("YZ_Plane"), [""])
sketch9.MapMode = "FlatFace"
sketch9.AttachmentOffset = App.Placement(V(0, 0, -100), App.Rotation())
sketch9.addGeometry(Part.LineSegment(V(-40, 15, 0), V(-40, 8, 0)), False)
sketch9.addGeometry(Part.ArcOfCircle(Part.Circle(V(-45, 8, 0), V(0, 0, 1), 5), math.radians(-90), math.radians(0)), False)
sketch9.addGeometry(Part.LineSegment(V(-45, 2, 0), V(-72, 2, 0)), False)
sketch9.addGeometry(Part.ArcOfCircle(Part.Circle(V(-72, 8, 0), V(0, 0, 1), 5), math.radians(180), math.radians(270)), False)
sketch9.addGeometry(Part.LineSegment(V(-78, 8, 0), V(-78, 15, 0)), False)
sketch9.addGeometry(Part.ArcOfCircle(Part.Circle(V(-72, 15, 0), V(0, 0, 1), 5), math.radians(90), math.radians(180)), False)
sketch9.addGeometry(Part.LineSegment(V(-72, 20, 0), V(-45, 20, 0)), False)
sketch9.addGeometry(Part.ArcOfCircle(Part.Circle(V(-45, 15, 0), V(0, 0, 1), 5), math.radians(0), math.radians(90)), False)
sketch9.addConstraint(Sketcher.Constraint("Tangent", 0, 2, 1, 2))
sketch9.addConstraint(Sketcher.Constraint("Tangent", 1, 1, 2, 1))
sketch9.addConstraint(Sketcher.Constraint("Tangent", 2, 2, 3, 2))
sketch9.addConstraint(Sketcher.Constraint("Tangent", 3, 1, 4, 1))
sketch9.addConstraint(Sketcher.Constraint("Tangent", 4, 2, 5, 2))
sketch9.addConstraint(Sketcher.Constraint("Tangent", 5, 1, 6, 1))
sketch9.addConstraint(Sketcher.Constraint("Tangent", 6, 2, 7, 2))
sketch9.addConstraint(Sketcher.Constraint("Tangent", 7, 1, 0, 1))
sketch9.addConstraint(Sketcher.Constraint("Vertical", 0))
sketch9.addConstraint(Sketcher.Constraint("Horizontal", 2))
sketch9.addConstraint(Sketcher.Constraint("Vertical", 4))
sketch9.addConstraint(Sketcher.Constraint("Horizontal", 6))
sketch9.addConstraint(Sketcher.Constraint("Equal", 1, 3))
sketch9.addConstraint(Sketcher.Constraint("Equal", 3, 5))
sketch9.addConstraint(Sketcher.Constraint("Equal", 5, 7))
sketch9.addConstraint(Sketcher.Constraint("Radius", 1, 5.0))
sketch9.addConstraint(Sketcher.Constraint("DistanceY", -1, 1, 1, 3, 7.5))
sketch9.addConstraint(Sketcher.Constraint("DistanceX", 3, 3, -1, 1, 72.5))
sketch9.addConstraint(Sketcher.Constraint("DistanceX", 2, 2, 2, 1, 27.652479))
sketch9.addConstraint(Sketcher.Constraint("DistanceY", 0, 2, 0, 1, 7.561317))
pocket6 = body.newObject("PartDesign::Pocket", "Pocket005")
pocket6.Profile = sketch9
pocket6.Length = 9.8
pocket6.Reversed = True
doc.recompute()

fillet3 = body.newObject("PartDesign::Fillet", "Fillet002")
fillet3.Base = (pocket6, edges_at(pocket6, [
    (-100, -41.312, 3.964),
    (-100, -58.674, 2.5),
    (-100, -76.036, 3.964),
    (-100, -77.5, 11.281),
    (-100, -76.036, 18.597),
    (-100, -58.674, 20.061),
    (-100, -41.312, 18.597),
    (-100, -39.848, 11.281),
    (-90.2, -41.312, 3.964),
    (-90.2, -39.848, 11.281),
    (-90.2, -41.312, 18.597),
    (-90.2, -58.674, 20.061),
    (-90.2, -76.036, 18.597),
    (-90.2, -77.5, 11.281),
    (-90.2, -76.036, 3.964),
    (-90.2, -58.674, 2.5),
]))
fillet3.Radius = 1

doc.recompute()
